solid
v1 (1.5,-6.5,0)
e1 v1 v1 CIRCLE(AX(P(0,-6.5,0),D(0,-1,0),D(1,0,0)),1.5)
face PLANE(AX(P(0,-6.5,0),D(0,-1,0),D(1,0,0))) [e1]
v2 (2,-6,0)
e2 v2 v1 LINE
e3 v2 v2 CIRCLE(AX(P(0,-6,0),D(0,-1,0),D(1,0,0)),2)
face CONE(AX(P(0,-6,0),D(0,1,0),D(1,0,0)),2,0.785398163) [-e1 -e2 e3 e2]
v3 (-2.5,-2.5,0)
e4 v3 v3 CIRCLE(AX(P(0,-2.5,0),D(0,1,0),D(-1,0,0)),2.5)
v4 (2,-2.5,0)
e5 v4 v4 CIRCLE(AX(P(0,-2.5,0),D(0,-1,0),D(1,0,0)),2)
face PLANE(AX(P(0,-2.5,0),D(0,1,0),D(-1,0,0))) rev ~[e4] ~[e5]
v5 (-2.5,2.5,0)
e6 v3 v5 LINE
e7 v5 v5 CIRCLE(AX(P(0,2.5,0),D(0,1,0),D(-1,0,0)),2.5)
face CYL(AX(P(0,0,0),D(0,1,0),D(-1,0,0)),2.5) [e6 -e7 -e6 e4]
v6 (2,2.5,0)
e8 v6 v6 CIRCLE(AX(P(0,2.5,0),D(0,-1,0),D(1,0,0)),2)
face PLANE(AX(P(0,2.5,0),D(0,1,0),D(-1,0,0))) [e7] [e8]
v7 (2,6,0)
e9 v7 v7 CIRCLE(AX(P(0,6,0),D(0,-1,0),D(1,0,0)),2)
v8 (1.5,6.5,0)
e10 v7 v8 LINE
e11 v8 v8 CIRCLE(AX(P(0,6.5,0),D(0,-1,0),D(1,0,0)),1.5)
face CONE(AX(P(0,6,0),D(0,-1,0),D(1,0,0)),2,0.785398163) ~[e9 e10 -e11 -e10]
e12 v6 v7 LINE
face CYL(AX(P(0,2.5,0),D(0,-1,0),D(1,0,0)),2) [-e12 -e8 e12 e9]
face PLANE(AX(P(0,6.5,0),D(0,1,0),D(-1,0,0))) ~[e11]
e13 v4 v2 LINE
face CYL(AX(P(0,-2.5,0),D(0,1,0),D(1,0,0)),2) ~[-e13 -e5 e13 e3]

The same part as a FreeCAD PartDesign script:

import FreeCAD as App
import Part
import Sketcher


def edges_at(feature, points):
    """Names of the edges that pass closest to the given points."""
    edges = feature.Shape.Edges
    near = lambda p: min(range(len(edges)), key=lambda i: edges[i].distToShape(Part.Vertex(*p))[0])
    return sorted({f"Edge{near(p) + 1}" for p in points})

doc = App.newDocument("Part")
body = doc.addObject("PartDesign::Body", "Body")

sketch1 = body.newObject("Sketcher::SketchObject", "Sketch")
sketch1.AttachmentSupport = (doc.getObject("XZ_Plane"), [""])
sketch1.MapMode = "FlatFace"
sketch1.addGeometry(Part.Circle(App.Vector(0, 0, 0), App.Vector(0, 0, 1), 2.5), False)
sketch1.addConstraint([
    Sketcher.Constraint("Coincident", 0, 3, -1, 1),
    Sketcher.Constraint("Diameter", 0, 5.0),
])
pad1 = body.newObject("PartDesign::Pad", "Pad")
pad1.Profile = sketch1
pad1.Length = 5
pad1.Midplane = True

sketch2 = body.newObject("Sketcher::SketchObject", "Sketch001")
sketch2.AttachmentSupport = (doc.getObject("XZ_Plane"), [""])
sketch2.MapMode = "FlatFace"
sketch2.AttachmentOffset = App.Placement(App.Vector(0, 0, 2.5), App.Rotation())
sketch2.addGeometry(Part.Circle(App.Vector(0, 0, 0), App.Vector(0, 0, 1), 2), False)
sketch2.addConstraint([
    Sketcher.Constraint("Coincident", 0, 3, -1, 1),
    Sketcher.Constraint("Diameter", 0, 4.0),
])
pad2 = body.newObject("PartDesign::Pad", "Pad001")
pad2.Profile = sketch2
pad2.Length = 4
doc.recompute()

chamfer = body.newObject("PartDesign::Chamfer", "Chamfer")
chamfer.Base = (pad2, edges_at(pad2, [(-2, -6.5, 0)]))
chamfer.Size = 0.5
doc.recompute()

mirrored = body.newObject("PartDesign::Mirrored", "Mirrored")
mirrored.Originals = [pad2, chamfer]
mirrored.MirrorPlane = (doc.getObject("XZ_Plane"), [""])
body.Tip = mirrored

doc.recompute()
